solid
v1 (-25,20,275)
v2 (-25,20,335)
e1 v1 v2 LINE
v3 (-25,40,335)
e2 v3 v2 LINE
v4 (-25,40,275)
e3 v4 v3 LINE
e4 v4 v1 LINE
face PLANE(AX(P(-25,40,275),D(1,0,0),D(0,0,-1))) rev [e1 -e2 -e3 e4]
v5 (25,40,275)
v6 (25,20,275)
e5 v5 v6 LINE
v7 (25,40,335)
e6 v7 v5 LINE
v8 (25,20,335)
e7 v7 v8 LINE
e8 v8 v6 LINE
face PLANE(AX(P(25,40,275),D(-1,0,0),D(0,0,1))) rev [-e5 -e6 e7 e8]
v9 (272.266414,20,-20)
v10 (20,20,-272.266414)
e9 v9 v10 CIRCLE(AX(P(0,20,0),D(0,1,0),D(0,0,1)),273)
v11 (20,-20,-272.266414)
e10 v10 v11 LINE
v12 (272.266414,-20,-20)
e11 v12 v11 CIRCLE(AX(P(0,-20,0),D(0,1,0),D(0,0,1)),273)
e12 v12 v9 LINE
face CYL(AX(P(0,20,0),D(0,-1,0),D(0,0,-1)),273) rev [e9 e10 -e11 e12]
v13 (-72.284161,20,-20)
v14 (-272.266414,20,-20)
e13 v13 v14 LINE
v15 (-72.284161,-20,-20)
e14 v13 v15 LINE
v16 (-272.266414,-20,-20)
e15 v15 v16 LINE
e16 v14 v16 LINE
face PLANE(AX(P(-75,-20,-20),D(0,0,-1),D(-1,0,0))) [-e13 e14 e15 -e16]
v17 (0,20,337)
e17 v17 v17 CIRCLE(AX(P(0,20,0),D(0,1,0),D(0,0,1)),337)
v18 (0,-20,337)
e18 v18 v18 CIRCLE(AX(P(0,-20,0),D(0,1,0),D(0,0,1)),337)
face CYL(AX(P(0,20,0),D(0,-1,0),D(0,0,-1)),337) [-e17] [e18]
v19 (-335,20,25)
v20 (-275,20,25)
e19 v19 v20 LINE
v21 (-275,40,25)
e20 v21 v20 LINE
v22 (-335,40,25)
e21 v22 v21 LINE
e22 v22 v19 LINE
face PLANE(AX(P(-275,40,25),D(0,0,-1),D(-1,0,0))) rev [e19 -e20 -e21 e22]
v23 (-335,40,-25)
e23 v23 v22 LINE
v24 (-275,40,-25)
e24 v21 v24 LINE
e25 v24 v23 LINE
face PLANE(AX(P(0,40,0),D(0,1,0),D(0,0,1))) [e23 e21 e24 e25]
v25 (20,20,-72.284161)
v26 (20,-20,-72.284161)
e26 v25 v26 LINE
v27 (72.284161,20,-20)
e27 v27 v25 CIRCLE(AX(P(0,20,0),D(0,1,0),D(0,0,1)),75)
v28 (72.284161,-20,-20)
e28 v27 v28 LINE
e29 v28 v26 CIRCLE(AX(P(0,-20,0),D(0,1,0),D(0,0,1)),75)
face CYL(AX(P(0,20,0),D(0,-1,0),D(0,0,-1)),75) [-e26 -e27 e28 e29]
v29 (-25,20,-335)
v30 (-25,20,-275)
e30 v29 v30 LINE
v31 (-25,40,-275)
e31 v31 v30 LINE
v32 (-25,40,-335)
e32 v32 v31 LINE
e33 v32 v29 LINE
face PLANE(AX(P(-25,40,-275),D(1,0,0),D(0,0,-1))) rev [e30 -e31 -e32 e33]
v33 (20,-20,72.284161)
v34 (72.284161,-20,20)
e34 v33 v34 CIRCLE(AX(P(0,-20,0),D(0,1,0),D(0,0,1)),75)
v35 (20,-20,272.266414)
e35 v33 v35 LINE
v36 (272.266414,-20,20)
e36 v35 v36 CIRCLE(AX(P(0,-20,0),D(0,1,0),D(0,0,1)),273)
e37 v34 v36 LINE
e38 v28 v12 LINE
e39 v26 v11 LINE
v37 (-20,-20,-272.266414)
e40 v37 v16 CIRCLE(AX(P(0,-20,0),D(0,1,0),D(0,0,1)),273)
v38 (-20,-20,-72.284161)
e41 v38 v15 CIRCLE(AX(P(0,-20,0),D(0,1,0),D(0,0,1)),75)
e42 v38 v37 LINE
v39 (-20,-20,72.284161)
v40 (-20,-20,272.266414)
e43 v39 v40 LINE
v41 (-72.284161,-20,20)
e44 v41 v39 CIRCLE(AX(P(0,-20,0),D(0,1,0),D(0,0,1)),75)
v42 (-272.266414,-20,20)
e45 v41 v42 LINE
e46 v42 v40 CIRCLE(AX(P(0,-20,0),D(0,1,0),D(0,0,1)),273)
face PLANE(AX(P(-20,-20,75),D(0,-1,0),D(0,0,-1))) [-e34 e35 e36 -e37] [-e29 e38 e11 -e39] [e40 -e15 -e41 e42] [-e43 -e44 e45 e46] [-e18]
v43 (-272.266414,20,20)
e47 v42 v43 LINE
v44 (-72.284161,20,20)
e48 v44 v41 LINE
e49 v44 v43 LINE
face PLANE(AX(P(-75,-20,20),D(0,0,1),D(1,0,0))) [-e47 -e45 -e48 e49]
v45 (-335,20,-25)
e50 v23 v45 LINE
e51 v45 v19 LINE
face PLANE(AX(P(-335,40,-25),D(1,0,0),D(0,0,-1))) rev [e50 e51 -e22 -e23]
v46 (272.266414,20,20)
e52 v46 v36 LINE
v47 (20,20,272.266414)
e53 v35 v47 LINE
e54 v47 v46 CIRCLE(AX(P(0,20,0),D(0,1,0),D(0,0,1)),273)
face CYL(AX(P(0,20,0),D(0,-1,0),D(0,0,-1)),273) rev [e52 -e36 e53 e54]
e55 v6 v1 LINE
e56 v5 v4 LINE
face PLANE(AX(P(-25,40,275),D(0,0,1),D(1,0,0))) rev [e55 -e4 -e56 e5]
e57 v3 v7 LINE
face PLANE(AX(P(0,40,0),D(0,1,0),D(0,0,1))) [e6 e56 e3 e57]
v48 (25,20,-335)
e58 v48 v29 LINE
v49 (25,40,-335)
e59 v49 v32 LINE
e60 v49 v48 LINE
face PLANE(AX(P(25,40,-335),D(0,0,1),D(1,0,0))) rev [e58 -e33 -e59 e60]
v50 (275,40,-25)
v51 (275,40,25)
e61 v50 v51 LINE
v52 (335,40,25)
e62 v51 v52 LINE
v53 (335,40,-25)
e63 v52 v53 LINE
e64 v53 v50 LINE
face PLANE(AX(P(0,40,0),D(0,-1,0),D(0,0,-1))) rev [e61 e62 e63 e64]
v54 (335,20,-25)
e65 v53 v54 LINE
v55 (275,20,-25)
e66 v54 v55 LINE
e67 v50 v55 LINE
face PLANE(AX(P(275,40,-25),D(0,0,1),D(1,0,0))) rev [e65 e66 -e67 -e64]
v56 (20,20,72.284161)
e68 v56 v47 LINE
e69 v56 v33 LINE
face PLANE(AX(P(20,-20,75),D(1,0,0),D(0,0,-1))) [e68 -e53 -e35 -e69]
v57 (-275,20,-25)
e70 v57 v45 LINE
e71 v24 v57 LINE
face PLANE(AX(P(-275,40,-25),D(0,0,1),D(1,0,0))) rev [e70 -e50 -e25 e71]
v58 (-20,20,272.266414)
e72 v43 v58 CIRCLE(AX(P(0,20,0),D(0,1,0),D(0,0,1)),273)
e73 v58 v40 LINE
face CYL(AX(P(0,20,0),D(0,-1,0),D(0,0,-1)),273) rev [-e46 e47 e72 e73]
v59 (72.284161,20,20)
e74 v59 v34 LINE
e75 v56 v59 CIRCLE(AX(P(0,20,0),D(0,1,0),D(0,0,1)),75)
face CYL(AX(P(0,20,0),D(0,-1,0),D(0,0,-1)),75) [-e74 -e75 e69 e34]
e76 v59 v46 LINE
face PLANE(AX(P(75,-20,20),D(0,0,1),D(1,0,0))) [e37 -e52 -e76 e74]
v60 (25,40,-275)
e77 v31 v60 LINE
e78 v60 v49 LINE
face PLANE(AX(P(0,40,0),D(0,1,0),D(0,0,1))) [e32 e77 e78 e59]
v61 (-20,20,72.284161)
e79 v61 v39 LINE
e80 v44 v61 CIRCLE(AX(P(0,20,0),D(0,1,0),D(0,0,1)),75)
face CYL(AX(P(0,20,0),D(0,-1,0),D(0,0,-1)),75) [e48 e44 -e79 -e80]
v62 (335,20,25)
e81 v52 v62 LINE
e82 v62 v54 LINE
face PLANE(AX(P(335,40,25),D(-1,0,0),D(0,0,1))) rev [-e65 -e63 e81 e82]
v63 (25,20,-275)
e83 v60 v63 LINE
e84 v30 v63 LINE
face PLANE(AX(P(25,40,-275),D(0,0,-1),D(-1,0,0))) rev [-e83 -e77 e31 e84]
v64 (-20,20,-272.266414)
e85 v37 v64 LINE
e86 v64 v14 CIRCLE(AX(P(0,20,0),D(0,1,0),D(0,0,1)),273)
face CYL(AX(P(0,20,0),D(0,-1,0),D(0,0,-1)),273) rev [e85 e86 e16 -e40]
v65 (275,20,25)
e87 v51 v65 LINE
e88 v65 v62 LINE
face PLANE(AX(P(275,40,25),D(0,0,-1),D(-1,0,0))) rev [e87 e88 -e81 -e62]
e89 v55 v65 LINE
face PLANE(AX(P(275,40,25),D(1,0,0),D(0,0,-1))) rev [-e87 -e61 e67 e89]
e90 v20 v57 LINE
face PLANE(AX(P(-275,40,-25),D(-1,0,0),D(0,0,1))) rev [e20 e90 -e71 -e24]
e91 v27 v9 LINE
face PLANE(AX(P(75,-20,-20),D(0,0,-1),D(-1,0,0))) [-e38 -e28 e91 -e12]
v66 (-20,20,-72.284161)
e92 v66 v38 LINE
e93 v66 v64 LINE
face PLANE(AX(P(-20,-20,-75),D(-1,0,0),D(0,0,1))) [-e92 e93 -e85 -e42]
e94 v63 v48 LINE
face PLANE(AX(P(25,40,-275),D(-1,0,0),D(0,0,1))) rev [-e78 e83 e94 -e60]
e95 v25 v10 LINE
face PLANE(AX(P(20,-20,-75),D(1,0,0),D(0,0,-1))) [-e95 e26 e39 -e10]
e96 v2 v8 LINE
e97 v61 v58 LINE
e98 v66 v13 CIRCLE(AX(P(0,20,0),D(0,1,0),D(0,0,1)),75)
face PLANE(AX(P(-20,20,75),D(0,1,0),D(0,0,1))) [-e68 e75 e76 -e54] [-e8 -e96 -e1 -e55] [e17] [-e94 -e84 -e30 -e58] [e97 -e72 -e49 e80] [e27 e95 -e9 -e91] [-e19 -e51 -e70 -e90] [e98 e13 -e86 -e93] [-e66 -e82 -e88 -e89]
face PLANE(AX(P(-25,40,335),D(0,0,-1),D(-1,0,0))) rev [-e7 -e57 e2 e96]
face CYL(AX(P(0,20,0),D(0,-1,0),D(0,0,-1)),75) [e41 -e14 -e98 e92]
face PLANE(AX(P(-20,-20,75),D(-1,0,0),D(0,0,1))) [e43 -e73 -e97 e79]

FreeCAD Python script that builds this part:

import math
import FreeCAD as App
import Part
import Sketcher
from FreeCAD import Vector
Q = App.Units.Quantity

doc = App.newDocument("Part")
params = doc.addObject("Spreadsheet::Sheet", "Params")
for row, (alias, value) in enumerate([
    ("sketch1_diameter", "40 mm"),
    ("revolution_angle", "360 deg"),
    ("sketch2_width", "40 mm"),
    ("pad1_length", "225 mm"),
    ("sketch3_diameter", "674 mm"),
    ("sketch3_diameter2", "546 mm"),
    ("pad2_length", "40 mm"),
    ("sketch4_radius", "75 mm"),
    ("sketch4_width", "40 mm"),
    ("pad3_length", "40 mm"),
    ("sketch5_width", "60 mm"),
    ("sketch5_width2", "50 mm"),
    ("pad4_length", "20 mm"),
], start=1):
    params.set(f"A{row}", alias)
    params.set(f"B{row}", "=" + value)
    params.setAlias(f"B{row}", alias)

body = doc.addObject("PartDesign::Body", "Body")

sketch1 = doc.addObject("Sketcher::SketchObject", "Sketch")
body.addObject(sketch1)
sketch1.AttachmentSupport = (doc.XY_Plane, [""])
sketch1.MapMode = "FlatFace"
sketch1.addGeometry(Part.Circle(Vector(300, 0, 0), Vector(0, 0, 1), 20), False)
sketch1.addConstraint([
    Sketcher.Constraint("PointOnObject", 0, 3, -1),
    Sketcher.Constraint("Diameter", 0, Q("40 mm")),
    Sketcher.Constraint("DistanceX", -1, 1, 0, 3, Q("300 mm")),
])
sketch1.setExpression("Constraints[1]", "Params.sketch1_diameter")
revolution = doc.addObject("PartDesign::Revolution", "Revolution")
body.addObject(revolution)
revolution.Profile = sketch1
revolution.ReferenceAxis = (sketch1, ["V_Axis"])
revolution.setExpression("Angle", "Params.revolution_angle")

sketch2 = doc.addObject("Sketcher::SketchObject", "Sketch001")
body.addObject(sketch2)
sketch2.AttachmentSupport = (doc.XY_Plane, [""])
sketch2.MapMode = "FlatFace"
sketch2.AttachmentOffset = App.Placement(Vector(0, 0, 300), App.Rotation())
sketch2.addGeometry([
    Part.LineSegment(Vector(-20, 20, 0), Vector(-20, -20, 0)),
    Part.LineSegment(Vector(-20, -20, 0), Vector(20, -20, 0)),
    Part.LineSegment(Vector(20, -20, 0), Vector(20, 20, 0)),
    Part.LineSegment(Vector(20, 20, 0), Vector(-20, 20, 0)),
], False)
sketch2.addConstraint([
    Sketcher.Constraint("Coincident", 0, 2, 1, 1),
    Sketcher.Constraint("Coincident", 1, 2, 2, 1),
    Sketcher.Constraint("Coincident", 2, 2, 3, 1),
    Sketcher.Constraint("Coincident", 3, 2, 0, 1),
    Sketcher.Constraint("Vertical", 0),
    Sketcher.Constraint("Horizontal", 1),
    Sketcher.Constraint("Vertical", 2),
    Sketcher.Constraint("Horizontal", 3),
    Sketcher.Constraint("Symmetric", 0, 2, 2, 2, -1, 1),
    Sketcher.Constraint("Equal", 3, 0),
    Sketcher.Constraint("DistanceX", 1, 1, 1, 2, Q("40 mm")),
])
sketch2.setExpression("Constraints[10]", "Params.sketch2_width")
pad1 = doc.addObject("PartDesign::Pad", "Pad")
body.addObject(pad1)
pad1.Profile = sketch2
pad1.setExpression("Length", "Params.pad1_length")
pad1.Reversed = True
doc.recompute()

polarpattern = doc.addObject("PartDesign::PolarPattern", "PolarPattern")
body.addObject(polarpattern)
polarpattern.Originals = [pad1]
polarpattern.Axis = (doc.Y_Axis, [""])
polarpattern.Angle = 360
polarpattern.Occurrences = 4
body.Tip = polarpattern

sketch3 = doc.addObject("Sketcher::SketchObject", "Sketch002")
body.addObject(sketch3)
sketch3.AttachmentSupport = (doc.XZ_Plane, [""])
sketch3.MapMode = "FlatFace"
sketch3.addGeometry([
    Part.Circle(Vector(0, 0, 0), Vector(0, 0, 1), 337),
    Part.Circle(Vector(0, 0, 0), Vector(0, 0, 1), 273),
], False)
sketch3.addConstraint([
    Sketcher.Constraint("Coincident", 0, 3, -1, 1),
    Sketcher.Constraint("Coincident", 1, 3, -1, 1),
    Sketcher.Constraint("Diameter", 0, Q("674 mm")),
    Sketcher.Constraint("Diameter", 1, Q("546 mm")),
])
sketch3.setExpression("Constraints[2]", "Params.sketch3_diameter")
sketch3.setExpression("Constraints[3]", "Params.sketch3_diameter2")
pad2 = doc.addObject("PartDesign::Pad", "Pad001")
body.addObject(pad2)
pad2.Profile = sketch3
pad2.setExpression("Length", "Params.pad2_length")
pad2.Midplane = True

sketch4 = doc.addObject("Sketcher::SketchObject", "Sketch003")
body.addObject(sketch4)
sketch4.AttachmentSupport = (doc.XZ_Plane, [""])
sketch4.MapMode = "FlatFace"
sketch4.addGeometry([
    Part.LineSegment(Vector(-20, 72.3, 0), Vector(-20, 75, 0)),
    Part.LineSegment(Vector(-20, 75, 0), Vector(20, 75, 0)),
    Part.LineSegment(Vector(20, 75, 0), Vector(20, 72.3, 0)),
    Part.ArcOfCircle(Part.Circle(Vector(0, 0, 0), Vector(0, 0, 1), 75), math.radians(15), math.radians(75)),
    Part.LineSegment(Vector(72.3, 20, 0), Vector(75, 20, 0)),
    Part.LineSegment(Vector(75, 20, 0), Vector(75, -20, 0)),
    Part.LineSegment(Vector(75, -20, 0), Vector(72.3, -20, 0)),
    Part.ArcOfCircle(Part.Circle(Vector(0, 0, 0), Vector(0, 0, 1), 75), math.radians(-75), math.radians(-15)),
    Part.LineSegment(Vector(20, -72.3, 0), Vector(20, -75, 0)),
    Part.LineSegment(Vector(20, -75, 0), Vector(-20, -75, 0)),
    Part.LineSegment(Vector(-20, -75, 0), Vector(-20, -72.3, 0)),
    Part.ArcOfCircle(Part.Circle(Vector(0, 0, 0), Vector(0, 0, 1), 75), math.radians(-165), math.radians(-105)),
    Part.LineSegment(Vector(-72.3, -20, 0), Vector(-75, -20, 0)),
    Part.LineSegment(Vector(-75, -20, 0), Vector(-75, 20, 0)),
    Part.LineSegment(Vector(-75, 20, 0), Vector(-72.3, 20, 0)),
    Part.ArcOfCircle(Part.Circle(Vector(0, 0, 0), Vector(0, 0, 1), 75), math.radians(105), math.radians(165)),
], False)
sketch4.addConstraint([
    Sketcher.Constraint("Coincident", 0, 2, 1, 1),
    Sketcher.Constraint("Coincident", 1, 2, 2, 1),
    Sketcher.Constraint("Coincident", 2, 2, 3, 2),
    Sketcher.Constraint("Coincident", 3, 1, 4, 1),
    Sketcher.Constraint("Coincident", 4, 2, 5, 1),
    Sketcher.Constraint("Coincident", 5, 2, 6, 1),
    Sketcher.Constraint("Coincident", 6, 2, 7, 2),
    Sketcher.Constraint("Coincident", 7, 1, 8, 1),
    Sketcher.Constraint("Coincident", 8, 2, 9, 1),
    Sketcher.Constraint("Coincident", 9, 2, 10, 1),
    Sketcher.Constraint("Coincident", 10, 2, 11, 2),
    Sketcher.Constraint("Coincident", 11, 1, 12, 1),
    Sketcher.Constraint("Coincident", 12, 2, 13, 1),
    Sketcher.Constraint("Coincident", 13, 2, 14, 1),
    Sketcher.Constraint("Coincident", 14, 2, 15, 2),
    Sketcher.Constraint("Coincident", 15, 1, 0, 1),
    Sketcher.Constraint("Vertical", 0),
    Sketcher.Constraint("Horizontal", 1),
    Sketcher.Constraint("Vertical", 2),
    Sketcher.Constraint("Horizontal", 4),
    Sketcher.Constraint("Vertical", 5),
    Sketcher.Constraint("Horizontal", 6),
    Sketcher.Constraint("Vertical", 8),
    Sketcher.Constraint("Horizontal", 9),
    Sketcher.Constraint("Vertical", 10),
    Sketcher.Constraint("Horizontal", 12),
    Sketcher.Constraint("Vertical", 13),
    Sketcher.Constraint("Horizontal", 14),
    Sketcher.Constraint("Coincident", 3, 3, -1, 1),
    Sketcher.Constraint("Coincident", 7, 3, -1, 1),
    Sketcher.Constraint("Coincident", 11, 3, -1, 1),
    Sketcher.Constraint("Coincident", 15, 3, -1, 1),
    Sketcher.Constraint("Equal", 3, 7),
    Sketcher.Constraint("Equal", 7, 11),
    Sketcher.Constraint("Equal", 11, 15),
    Sketcher.Constraint("Symmetric", 0, 2, 8, 2, -1, 1),
    Sketcher.Constraint("Symmetric", 4, 2, 12, 2, -1, 1),
    Sketcher.Constraint("Horizontal", 7, 1, 10, 2),
    Sketcher.Constraint("Horizontal", 6, 2, 11, 1),
    Sketcher.Constraint("Horizontal", 4, 2, 13, 2),
    Sketcher.Constraint("Horizontal", 2, 2, 15, 1),
    Sketcher.Constraint("Equal", 14, 0),
    Sketcher.Constraint("Equal", 9, 5),
    Sketcher.Constraint("Radius", 3, Q("75 mm")),
    Sketcher.Constraint("DistanceX", 1, 1, 1, 2, Q("40 mm")),
    Sketcher.Constraint("DistanceY", -1, 1, 0, 2, Q("75 mm")),
])
sketch4.setExpression("Constraints[43]", "Params.sketch4_radius")
sketch4.setExpression("Constraints[44]", "Params.sketch4_width")
pad3 = doc.addObject("PartDesign::Pad", "Pad002")
body.addObject(pad3)
pad3.Profile = sketch4
pad3.setExpression("Length", "Params.pad3_length")
pad3.Midplane = True

sketch5 = doc.addObject("Sketcher::SketchObject", "Sketch004")
body.addObject(sketch5)
sketch5.AttachmentSupport = (doc.XZ_Plane, [""])
sketch5.MapMode = "FlatFace"
sketch5.AttachmentOffset = App.Placement(Vector(0, 0, -20), App.Rotation())
sketch5.addGeometry([
    Part.LineSegment(Vector(275, -25, 0), Vector(275, 25, 0)),
    Part.LineSegment(Vector(275, 25, 0), Vector(335, 25, 0)),
    Part.LineSegment(Vector(335, 25, 0), Vector(335, -25, 0)),
    Part.LineSegment(Vector(335, -25, 0), Vector(275, -25, 0)),
    Part.LineSegment(Vector(-25, 275, 0), Vector(-25, 335, 0)),
    Part.LineSegment(Vector(-25, 335, 0), Vector(25, 335, 0)),
    Part.LineSegment(Vector(25, 335, 0), Vector(25, 275, 0)),
    Part.LineSegment(Vector(25, 275, 0), Vector(-25, 275, 0)),
    Part.LineSegment(Vector(-335, -25, 0), Vector(-335, 25, 0)),
    Part.LineSegment(Vector(-335, 25, 0), Vector(-275, 25, 0)),
    Part.LineSegment(Vector(-275, 25, 0), Vector(-275, -25, 0)),
    Part.LineSegment(Vector(-275, -25, 0), Vector(-335, -25, 0)),
    Part.LineSegment(Vector(-25, -335, 0), Vector(-25, -275, 0)),
    Part.LineSegment(Vector(-25, -275, 0), Vector(25, -275, 0)),
    Part.LineSegment(Vector(25, -275, 0), Vector(25, -335, 0)),
    Part.LineSegment(Vector(25, -335, 0), Vector(-25, -335, 0)),
], False)
sketch5.addConstraint([
    Sketcher.Constraint("Coincident", 0, 2, 1, 1),
    Sketcher.Constraint("Coincident", 1, 2, 2, 1),
    Sketcher.Constraint("Coincident", 2, 2, 3, 1),
    Sketcher.Constraint("Coincident", 3, 2, 0, 1),
    Sketcher.Constraint("Coincident", 4, 2, 5, 1),
    Sketcher.Constraint("Coincident", 5, 2, 6, 1),
    Sketcher.Constraint("Coincident", 6, 2, 7, 1),
    Sketcher.Constraint("Coincident", 7, 2, 4, 1),
    Sketcher.Constraint("Coincident", 8, 2, 9, 1),
    Sketcher.Constraint("Coincident", 9, 2, 10, 1),
    Sketcher.Constraint("Coincident", 10, 2, 11, 1),
    Sketcher.Constraint("Coincident", 11, 2, 8, 1),
    Sketcher.Constraint("Coincident", 12, 2, 13, 1),
    Sketcher.Constraint("Coincident", 13, 2, 14, 1),
    Sketcher.Constraint("Coincident", 14, 2, 15, 1),
    Sketcher.Constraint("Coincident", 15, 2, 12, 1),
    Sketcher.Constraint("Vertical", 0),
    Sketcher.Constraint("Horizontal", 1),
    Sketcher.Constraint("Vertical", 2),
    Sketcher.Constraint("Horizontal", 3),
    Sketcher.Constraint("Vertical", 4),
    Sketcher.Constraint("Horizontal", 5),
    Sketcher.Constraint("Vertical", 6),
    Sketcher.Constraint("Horizontal", 7),
    Sketcher.Constraint("Vertical", 8),
    Sketcher.Constraint("Horizontal", 9),
    Sketcher.Constraint("Vertical", 10),
    Sketcher.Constraint("Horizontal", 11),
    Sketcher.Constraint("Vertical", 12),
    Sketcher.Constraint("Horizontal", 13),
    Sketcher.Constraint("Vertical", 14),
    Sketcher.Constraint("Horizontal", 15),
    Sketcher.Constraint("Symmetric", 2, 2, 8, 2, -1, 1),
    Sketcher.Constraint("Symmetric", 0, 2, 10, 2, -1, 1),
    Sketcher.Constraint("Symmetric", 6, 2, 12, 2, -1, 1),
    Sketcher.Constraint("Symmetric", 4, 2, 14, 2, -1, 1),
    Sketcher.Constraint("Horizontal", 1, 2, 8, 2),
    Sketcher.Constraint("Vertical", 7, 2, 12, 2),
    Sketcher.Constraint("Equal", 15, 0),
    Sketcher.Constraint("Equal", 11, 4),
    Sketcher.Constraint("DistanceX", 1, 1, 1, 2, Q("60 mm")),
    Sketcher.Constraint("DistanceX", 5, 1, 5, 2, Q("50 mm")),
    Sketcher.Constraint("DistanceX", -1, 1, 0, 2, Q("275 mm")),
    Sketcher.Constraint("DistanceY", -1, 1, 4, 2, Q("335 mm")),
])
sketch5.setExpression("Constraints[40]", "Params.sketch5_width")
sketch5.setExpression("Constraints[41]", "Params.sketch5_width2")
pad4 = doc.addObject("PartDesign::Pad", "Pad003")
body.addObject(pad4)
pad4.Profile = sketch5
pad4.setExpression("Length", "Params.pad4_length")
pad4.Reversed = True

doc.recompute()
